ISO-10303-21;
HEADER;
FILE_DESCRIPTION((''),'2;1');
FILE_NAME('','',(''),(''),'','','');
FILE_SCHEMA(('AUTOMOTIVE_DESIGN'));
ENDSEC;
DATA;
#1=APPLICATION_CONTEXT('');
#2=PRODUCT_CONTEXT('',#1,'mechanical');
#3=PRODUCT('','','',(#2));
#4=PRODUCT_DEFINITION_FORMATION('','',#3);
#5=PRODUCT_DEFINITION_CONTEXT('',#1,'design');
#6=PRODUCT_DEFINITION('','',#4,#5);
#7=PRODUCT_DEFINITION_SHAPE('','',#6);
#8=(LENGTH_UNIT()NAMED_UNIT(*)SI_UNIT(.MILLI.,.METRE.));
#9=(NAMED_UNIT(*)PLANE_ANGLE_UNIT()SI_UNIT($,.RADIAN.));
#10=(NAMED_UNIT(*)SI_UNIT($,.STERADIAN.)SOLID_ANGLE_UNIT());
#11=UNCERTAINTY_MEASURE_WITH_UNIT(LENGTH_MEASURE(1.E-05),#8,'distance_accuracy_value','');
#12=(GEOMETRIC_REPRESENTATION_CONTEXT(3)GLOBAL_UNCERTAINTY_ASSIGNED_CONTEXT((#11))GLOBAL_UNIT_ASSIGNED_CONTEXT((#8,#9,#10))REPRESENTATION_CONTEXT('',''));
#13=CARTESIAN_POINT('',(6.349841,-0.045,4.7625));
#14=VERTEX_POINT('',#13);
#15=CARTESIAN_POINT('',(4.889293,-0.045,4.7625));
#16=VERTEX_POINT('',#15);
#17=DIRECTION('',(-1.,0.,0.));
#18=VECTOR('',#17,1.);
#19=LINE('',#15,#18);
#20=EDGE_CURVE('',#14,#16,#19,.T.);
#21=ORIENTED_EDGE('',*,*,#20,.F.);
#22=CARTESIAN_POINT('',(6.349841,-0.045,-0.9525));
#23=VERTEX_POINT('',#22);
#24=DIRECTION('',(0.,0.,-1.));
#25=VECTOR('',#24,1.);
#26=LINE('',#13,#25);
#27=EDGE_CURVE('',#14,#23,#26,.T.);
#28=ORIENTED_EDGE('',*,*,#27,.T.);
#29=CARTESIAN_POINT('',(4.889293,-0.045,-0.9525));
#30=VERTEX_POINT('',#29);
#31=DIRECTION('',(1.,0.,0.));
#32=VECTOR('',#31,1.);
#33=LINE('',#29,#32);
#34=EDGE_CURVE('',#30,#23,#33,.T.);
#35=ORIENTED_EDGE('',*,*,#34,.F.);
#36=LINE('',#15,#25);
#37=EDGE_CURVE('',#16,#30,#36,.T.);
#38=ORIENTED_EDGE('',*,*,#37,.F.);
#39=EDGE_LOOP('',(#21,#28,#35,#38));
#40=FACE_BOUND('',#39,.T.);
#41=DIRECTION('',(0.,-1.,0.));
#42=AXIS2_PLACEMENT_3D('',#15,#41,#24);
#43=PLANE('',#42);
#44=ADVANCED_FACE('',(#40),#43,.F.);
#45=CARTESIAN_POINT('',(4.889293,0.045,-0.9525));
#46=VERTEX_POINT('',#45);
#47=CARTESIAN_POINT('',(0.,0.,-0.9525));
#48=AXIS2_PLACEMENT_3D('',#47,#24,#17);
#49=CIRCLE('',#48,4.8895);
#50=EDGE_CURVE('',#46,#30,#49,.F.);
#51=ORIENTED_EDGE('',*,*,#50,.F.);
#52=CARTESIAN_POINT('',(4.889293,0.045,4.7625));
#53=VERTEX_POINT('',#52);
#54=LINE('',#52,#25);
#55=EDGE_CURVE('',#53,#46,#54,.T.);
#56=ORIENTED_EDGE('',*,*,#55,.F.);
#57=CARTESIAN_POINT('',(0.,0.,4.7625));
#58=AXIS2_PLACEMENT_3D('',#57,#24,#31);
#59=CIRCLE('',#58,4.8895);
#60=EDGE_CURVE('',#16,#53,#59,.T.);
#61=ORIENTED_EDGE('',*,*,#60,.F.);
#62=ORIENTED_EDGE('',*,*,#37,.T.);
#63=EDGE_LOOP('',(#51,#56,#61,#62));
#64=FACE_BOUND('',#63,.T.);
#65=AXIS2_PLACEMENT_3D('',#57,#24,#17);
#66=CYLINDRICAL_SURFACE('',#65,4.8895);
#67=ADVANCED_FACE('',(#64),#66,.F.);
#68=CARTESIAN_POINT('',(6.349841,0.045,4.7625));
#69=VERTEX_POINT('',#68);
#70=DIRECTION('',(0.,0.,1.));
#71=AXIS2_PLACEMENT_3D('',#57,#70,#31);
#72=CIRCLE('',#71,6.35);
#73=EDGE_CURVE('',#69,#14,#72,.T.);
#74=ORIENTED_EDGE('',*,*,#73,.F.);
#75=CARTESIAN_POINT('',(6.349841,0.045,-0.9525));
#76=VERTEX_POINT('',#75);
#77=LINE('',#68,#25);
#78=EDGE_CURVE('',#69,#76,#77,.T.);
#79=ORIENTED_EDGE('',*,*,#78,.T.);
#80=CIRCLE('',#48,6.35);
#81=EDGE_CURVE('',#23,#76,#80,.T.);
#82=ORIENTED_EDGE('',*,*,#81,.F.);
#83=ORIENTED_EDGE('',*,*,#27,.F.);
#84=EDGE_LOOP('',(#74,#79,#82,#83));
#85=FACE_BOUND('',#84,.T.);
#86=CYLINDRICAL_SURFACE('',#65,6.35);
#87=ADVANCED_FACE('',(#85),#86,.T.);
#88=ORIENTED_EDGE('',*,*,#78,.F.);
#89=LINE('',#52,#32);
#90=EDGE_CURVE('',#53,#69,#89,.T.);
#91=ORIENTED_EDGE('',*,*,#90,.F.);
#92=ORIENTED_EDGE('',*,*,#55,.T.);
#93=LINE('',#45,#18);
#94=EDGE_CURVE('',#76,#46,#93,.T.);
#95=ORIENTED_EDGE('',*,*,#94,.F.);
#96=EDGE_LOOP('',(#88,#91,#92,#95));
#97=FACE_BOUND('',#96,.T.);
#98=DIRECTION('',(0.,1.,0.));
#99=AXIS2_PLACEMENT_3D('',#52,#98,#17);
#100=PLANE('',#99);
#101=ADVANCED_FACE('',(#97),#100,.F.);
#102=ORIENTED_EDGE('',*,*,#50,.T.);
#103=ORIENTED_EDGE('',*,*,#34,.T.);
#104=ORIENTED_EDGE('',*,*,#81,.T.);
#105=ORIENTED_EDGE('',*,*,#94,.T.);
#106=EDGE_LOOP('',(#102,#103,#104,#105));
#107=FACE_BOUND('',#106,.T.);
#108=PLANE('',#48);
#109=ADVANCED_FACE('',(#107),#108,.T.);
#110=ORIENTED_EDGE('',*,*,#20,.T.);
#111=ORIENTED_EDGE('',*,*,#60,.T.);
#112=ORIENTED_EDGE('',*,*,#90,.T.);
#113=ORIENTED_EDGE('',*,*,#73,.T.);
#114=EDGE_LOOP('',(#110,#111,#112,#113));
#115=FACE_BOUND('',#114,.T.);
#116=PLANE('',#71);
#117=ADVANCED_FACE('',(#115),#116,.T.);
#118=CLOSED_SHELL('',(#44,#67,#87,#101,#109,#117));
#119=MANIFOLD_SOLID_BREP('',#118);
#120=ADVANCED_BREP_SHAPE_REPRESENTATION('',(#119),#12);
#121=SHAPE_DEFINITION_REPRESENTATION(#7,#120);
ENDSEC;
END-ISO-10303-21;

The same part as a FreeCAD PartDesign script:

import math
import FreeCAD as App
import Part
import Sketcher
Q = App.Units.Quantity

doc = App.newDocument("Part")
body = doc.addObject("PartDesign::Body", "Body")

# Sketch on XY plane
sketch1 = doc.addObject("Sketcher::SketchObject", "Sketch")
body.addObject(sketch1)
sketch1.AttachmentSupport = (doc.XY_Plane, [""])
sketch1.MapMode = "FlatFace"
sketch1.addGeometry([
    Part.LineSegment(App.Vector(4.889293, 0.045, 0), App.Vector(6.349841, 0.045, 0)),
    Part.ArcOfCircle(Part.Circle(App.Vector(0, 0, 0), App.Vector(0, 0, 1), 6.35), math.radians(0.406036), math.radians(359.593964)),
    Part.LineSegment(App.Vector(6.349841, -0.045, 0), App.Vector(4.889293, -0.045, 0)),
    Part.ArcOfCircle(Part.Circle(App.Vector(0, 0, 0), App.Vector(0, 0, 1), 4.8895), math.radians(0.527323), math.radians(359.472677)),
], False)
sketch1.addConstraint([
    Sketcher.Constraint("Coincident", 0, 2, 1, 1),
    Sketcher.Constraint("Coincident", 1, 2, 2, 1),
    Sketcher.Constraint("Coincident", 2, 2, 3, 2),
    Sketcher.Constraint("Coincident", 3, 1, 0, 1),
    Sketcher.Constraint("Horizontal", 0),
    Sketcher.Constraint("Horizontal", 2),
    Sketcher.Constraint("Coincident", 1, 3, -1, 1),
    Sketcher.Constraint("Coincident", 3, 3, -1, 1),
    Sketcher.Constraint("Vertical", 0, 2, 1, 2),
    Sketcher.Constraint("Radius", 1, Q("0.25 in")),
    Sketcher.Constraint("Radius", 3, Q("0.1925 in")),
    Sketcher.Constraint("DistanceY", -1, 1, 0, 2, 0.045),
])
pad1 = doc.addObject("PartDesign::Pad", "Pad")
body.addObject(pad1)
pad1.Profile = sketch1
pad1.Type = "TwoLengths"
pad1.Length = Q("0.1875 in")
pad1.Length2 = Q("0.1875 in")

# Sketch on XY plane
sketch2 = doc.addObject("Sketcher::SketchObject", "Sketch001")
body.addObject(sketch2)
sketch2.AttachmentSupport = (doc.XY_Plane, [""])
sketch2.MapMode = "FlatFace"
sketch2.AttachmentOffset = App.Placement(App.Vector(0, 0, -0.1875 * 25.4), App.Rotation())
sketch2.addGeometry([
    Part.LineSegment(App.Vector(13, 11, 0), App.Vector(13, -11, 0)),
    Part.LineSegment(App.Vector(13, -11, 0), App.Vector(-11, -11, 0)),
    Part.LineSegment(App.Vector(-11, -11, 0), App.Vector(-11, 11, 0)),
    Part.LineSegment(App.Vector(-11, 11, 0), App.Vector(13, 11, 0)),
], False)
sketch2.addConstraint([
    Sketcher.Constraint("Coincident", 0, 2, 1, 1),
    Sketcher.Constraint("Coincident", 1, 2, 2, 1),
    Sketcher.Constraint("Coincident", 2, 2, 3, 1),
    Sketcher.Constraint("Coincident", 3, 2, 0, 1),
    Sketcher.Constraint("Vertical", 0),
    Sketcher.Constraint("Horizontal", 1),
    Sketcher.Constraint("Vertical", 2),
    Sketcher.Constraint("Horizontal", 3),
    Sketcher.Constraint("DistanceY", 0, 2, 0, 1, 22.521662),
    Sketcher.Constraint("DistanceX", 1, 2, 1, 1, 24.044105),
    Sketcher.Constraint("DistanceY", 0, 2, -1, 1, 11.14271),
    Sketcher.Constraint("DistanceX", 1, 2, -1, 1, 11.313409),
])
pocket1 = doc.addObject("PartDesign::Pocket", "Pocket")
body.addObject(pocket1)
pocket1.Profile = sketch2
pocket1.Length = Q("0.15 in")
pocket1.Reversed = True

doc.recompute()
